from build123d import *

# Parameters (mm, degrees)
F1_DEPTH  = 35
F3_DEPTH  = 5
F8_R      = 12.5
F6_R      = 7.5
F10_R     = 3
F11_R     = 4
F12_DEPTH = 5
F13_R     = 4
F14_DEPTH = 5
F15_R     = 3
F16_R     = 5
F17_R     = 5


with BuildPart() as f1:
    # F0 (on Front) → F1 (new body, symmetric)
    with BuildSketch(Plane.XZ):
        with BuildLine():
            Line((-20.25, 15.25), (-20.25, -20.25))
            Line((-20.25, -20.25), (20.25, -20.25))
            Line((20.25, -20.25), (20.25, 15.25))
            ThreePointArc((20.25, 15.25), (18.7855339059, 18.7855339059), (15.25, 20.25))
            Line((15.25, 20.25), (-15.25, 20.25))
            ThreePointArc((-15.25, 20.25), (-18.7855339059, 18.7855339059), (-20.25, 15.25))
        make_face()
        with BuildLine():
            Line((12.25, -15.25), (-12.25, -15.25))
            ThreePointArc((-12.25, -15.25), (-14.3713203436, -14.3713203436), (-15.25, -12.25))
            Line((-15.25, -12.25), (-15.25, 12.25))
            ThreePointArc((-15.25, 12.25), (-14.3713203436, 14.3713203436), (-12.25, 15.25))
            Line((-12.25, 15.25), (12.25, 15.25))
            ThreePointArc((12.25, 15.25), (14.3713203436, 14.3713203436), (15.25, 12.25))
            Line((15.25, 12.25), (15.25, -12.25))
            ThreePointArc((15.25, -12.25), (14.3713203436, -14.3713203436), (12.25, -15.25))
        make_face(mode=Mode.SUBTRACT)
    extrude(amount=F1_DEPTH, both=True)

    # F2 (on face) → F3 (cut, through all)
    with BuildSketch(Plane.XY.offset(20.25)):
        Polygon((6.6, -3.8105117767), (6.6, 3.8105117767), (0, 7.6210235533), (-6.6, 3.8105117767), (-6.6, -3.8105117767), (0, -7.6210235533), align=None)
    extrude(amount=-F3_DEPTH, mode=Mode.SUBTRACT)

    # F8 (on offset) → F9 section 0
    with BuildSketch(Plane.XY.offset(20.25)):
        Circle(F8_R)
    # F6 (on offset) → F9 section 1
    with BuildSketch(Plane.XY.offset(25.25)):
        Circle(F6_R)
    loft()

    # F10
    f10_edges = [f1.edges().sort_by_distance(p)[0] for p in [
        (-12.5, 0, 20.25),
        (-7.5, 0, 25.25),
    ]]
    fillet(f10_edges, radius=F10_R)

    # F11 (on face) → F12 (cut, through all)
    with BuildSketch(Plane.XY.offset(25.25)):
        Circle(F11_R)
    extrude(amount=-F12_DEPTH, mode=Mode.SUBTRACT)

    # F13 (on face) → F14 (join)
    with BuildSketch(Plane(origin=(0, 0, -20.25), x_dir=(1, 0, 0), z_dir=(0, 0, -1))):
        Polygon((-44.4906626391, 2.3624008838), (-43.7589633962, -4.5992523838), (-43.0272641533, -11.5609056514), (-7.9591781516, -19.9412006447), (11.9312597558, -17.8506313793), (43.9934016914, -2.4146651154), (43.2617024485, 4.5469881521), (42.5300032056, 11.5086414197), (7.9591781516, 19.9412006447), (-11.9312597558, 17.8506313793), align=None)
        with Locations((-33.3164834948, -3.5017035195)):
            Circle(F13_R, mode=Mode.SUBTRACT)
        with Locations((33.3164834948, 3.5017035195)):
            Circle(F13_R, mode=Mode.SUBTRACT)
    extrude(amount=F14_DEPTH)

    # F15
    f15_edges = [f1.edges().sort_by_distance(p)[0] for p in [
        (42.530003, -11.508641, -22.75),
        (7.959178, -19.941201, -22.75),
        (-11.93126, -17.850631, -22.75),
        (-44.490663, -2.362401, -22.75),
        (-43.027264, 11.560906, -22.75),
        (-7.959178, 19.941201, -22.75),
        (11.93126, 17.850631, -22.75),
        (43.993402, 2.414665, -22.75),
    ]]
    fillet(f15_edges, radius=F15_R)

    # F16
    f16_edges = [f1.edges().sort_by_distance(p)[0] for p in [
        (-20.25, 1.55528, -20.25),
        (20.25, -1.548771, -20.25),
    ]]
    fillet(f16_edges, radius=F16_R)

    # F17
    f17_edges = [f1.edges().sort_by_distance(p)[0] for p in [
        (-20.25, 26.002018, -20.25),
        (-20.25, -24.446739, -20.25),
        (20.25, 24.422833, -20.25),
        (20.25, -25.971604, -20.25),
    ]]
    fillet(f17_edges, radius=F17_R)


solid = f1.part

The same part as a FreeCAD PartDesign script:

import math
import FreeCAD as App
import Part
import Sketcher

V = App.Vector
Q = App.Units.Quantity


def edges_at(feature, points):
    """Names of the edges that pass closest to the given points."""
    edges = feature.Shape.Edges
    near = lambda p: min(range(len(edges)), key=lambda i: edges[i].distToShape(Part.Vertex(*p))[0])
    return sorted({f"Edge{near(p) + 1}" for p in points})


def add_polygon(sketch, points):
    """Adds a closed chain of lines whose ends are joined by coincident constraints."""
    first, n = sketch.GeometryCount, len(points)
    for a, b in zip(points, points[1:] + points[:1]):
        sketch.addGeometry(Part.LineSegment(App.Vector(*a, 0), App.Vector(*b, 0)), False)
    for i in range(n):
        sketch.addConstraint(Sketcher.Constraint("Coincident", first + i, 2, first + (i + 1) % n, 1))

doc = App.newDocument("Part")
body = doc.addObject("PartDesign::Body", "Body")

sketch1 = body.newObject("Sketcher::SketchObject", "Sketch")
sketch1.AttachmentSupport = (doc.getObject("XZ_Plane"), [""])
sketch1.MapMode = "FlatFace"
sketch1.addGeometry([
    Part.LineSegment(V(-20.25, 15.25, 0), V(-20.25, -20.25, 0)),
    Part.LineSegment(V(-20.25, -20.25, 0), V(20.25, -20.25, 0)),
    Part.LineSegment(V(20.25, -20.25, 0), V(20.25, 15.25, 0)),
    Part.ArcOfCircle(Part.Circle(V(15.25, 15.25, 0), V(0, 0, 1), 5), math.radians(0), math.radians(90)),
    Part.LineSegment(V(15.25, 20.25, 0), V(-15.25, 20.25, 0)),
    Part.ArcOfCircle(Part.Circle(V(-15.25, 15.25, 0), V(0, 0, 1), 5), math.radians(90), math.radians(180)),
    Part.ArcOfCircle(Part.Circle(V(12.25, -12.25, 0), V(0, 0, 1), 3), math.radians(-90), math.radians(0)),
    Part.LineSegment(V(12.25, -15.25, 0), V(-12.25, -15.25, 0)),
    Part.ArcOfCircle(Part.Circle(V(-12.25, -12.25, 0), V(0, 0, 1), 3), math.radians(180), math.radians(270)),
    Part.LineSegment(V(-15.25, -12.25, 0), V(-15.25, 12.25, 0)),
    Part.ArcOfCircle(Part.Circle(V(-12.25, 12.25, 0), V(0, 0, 1), 3), math.radians(90), math.radians(180)),
    Part.LineSegment(V(-12.25, 15.25, 0), V(12.25, 15.25, 0)),
    Part.ArcOfCircle(Part.Circle(V(12.25, 12.25, 0), V(0, 0, 1), 3), math.radians(0), math.radians(90)),
    Part.LineSegment(V(15.25, 12.25, 0), V(15.25, -12.25, 0)),
], False)
sketch1.addConstraint([
    Sketcher.Constraint("Coincident", 0, 2, 1, 1),
    Sketcher.Constraint("Coincident", 1, 2, 2, 1),
    Sketcher.Constraint("Tangent", 2, 2, 3, 1),
    Sketcher.Constraint("Tangent", 3, 2, 4, 1),
    Sketcher.Constraint("Tangent", 4, 2, 5, 1),
    Sketcher.Constraint("Tangent", 5, 2, 0, 1),
    Sketcher.Constraint("Tangent", 6, 1, 7, 1),
    Sketcher.Constraint("Tangent", 7, 2, 8, 2),
    Sketcher.Constraint("Tangent", 8, 1, 9, 1),
    Sketcher.Constraint("Tangent", 9, 2, 10, 2),
    Sketcher.Constraint("Tangent", 10, 1, 11, 1),
    Sketcher.Constraint("Tangent", 11, 2, 12, 2),
    Sketcher.Constraint("Tangent", 12, 1, 13, 1),
    Sketcher.Constraint("Tangent", 13, 2, 6, 2),
    Sketcher.Constraint("Vertical", 0),
    Sketcher.Constraint("Horizontal", 1),
    Sketcher.Constraint("Vertical", 2),
    Sketcher.Constraint("Horizontal", 4),
    Sketcher.Constraint("Horizontal", 7),
    Sketcher.Constraint("Vertical", 9),
    Sketcher.Constraint("Horizontal", 11),
    Sketcher.Constraint("Vertical", 13),
    Sketcher.Constraint("Equal", 3, 5),
    Sketcher.Constraint("Equal", 6, 8),
    Sketcher.Constraint("Equal", 8, 10),
    Sketcher.Constraint("Equal", 10, 12),
    Sketcher.Constraint("Symmetric", 6, 3, 10, 3, -1, 1),
    Sketcher.Constraint("Horizontal", 5, 2, 10, 1),
    Sketcher.Constraint("Vertical", 4, 2, 8, 1),
    Sketcher.Constraint("Vertical", 3, 2, 12, 1),
    Sketcher.Constraint("Equal", 11, 9),
    Sketcher.Constraint("Radius", 3, Q("5 mm")),
    Sketcher.Constraint("Radius", 6, Q("3 mm")),
    Sketcher.Constraint("DistanceX", 1, 1, 1, 2, Q("40.5 mm")),
    Sketcher.Constraint("DistanceY", 0, 2, 0, 1, Q("35.5 mm")),
])
pad1 = body.newObject("PartDesign::Pad", "Pad")
pad1.Profile = sketch1
pad1.Length = 70
pad1.Midplane = True

sketch2 = body.newObject("Sketcher::SketchObject", "Sketch001")
sketch2.AttachmentSupport = (doc.getObject("XY_Plane"), [""])
sketch2.MapMode = "FlatFace"
sketch2.AttachmentOffset = App.Placement(V(0, 0, 20.25), App.Rotation())
add_polygon(sketch2, [(6.6, -3.810512), (6.6, 3.810512), (0, 7.621024), (-6.6, 3.810512), (-6.6, -3.810512), (0, -7.621024)])
sketch2.addConstraint([
    Sketcher.Constraint("Vertical", 0),
    Sketcher.Constraint("Vertical", 3),
    Sketcher.Constraint("Symmetric", 0, 2, 3, 2, -1, 1),
    Sketcher.Constraint("Symmetric", 1, 2, 4, 2, -1, 1),
    Sketcher.Constraint("PointOnObject", 1, 2, -2),
    Sketcher.Constraint("Parallel", 2, 5),
    Sketcher.Constraint("Horizontal", 0, 2, 2, 2),
    Sketcher.Constraint("Angle", 1, Q("150 deg")),
    Sketcher.Constraint("DistanceX", -1, 1, 0, 2, Q("6.6 mm")),
    Sketcher.Constraint("DistanceY", 0, 1, 0, 2, Q("7.621024 mm")),
])
pocket1 = body.newObject("PartDesign::Pocket", "Pocket")
pocket1.Profile = sketch2
pocket1.Length = 5

sketch3 = body.newObject("Sketcher::SketchObject", "Sketch002")
sketch3.AttachmentSupport = (doc.getObject("XY_Plane"), [""])
sketch3.MapMode = "FlatFace"
sketch3.AttachmentOffset = App.Placement(V(0, 0, 20.25), App.Rotation())
sketch3.addGeometry(Part.Circle(V(0, 0, 0), V(0, 0, 1), 12.5), False)
sketch3.addConstraint([
    Sketcher.Constraint("Coincident", 0, 3, -1, 1),
    Sketcher.Constraint("Diameter", 0, Q("25 mm")),
])

sketch4 = body.newObject("Sketcher::SketchObject", "Sketch003")
sketch4.AttachmentSupport = (doc.getObject("XY_Plane"), [""])
sketch4.MapMode = "FlatFace"
sketch4.AttachmentOffset = App.Placement(V(0, 0, 25.25), App.Rotation())
sketch4.addGeometry(Part.Circle(V(0, 0, 0), V(0, 0, 1), 7.5), False)
sketch4.addConstraint([
    Sketcher.Constraint("Coincident", 0, 3, -1, 1),
    Sketcher.Constraint("Diameter", 0, Q("15 mm")),
])

additiveloft = body.newObject("PartDesign::AdditiveLoft", "AdditiveLoft")
additiveloft.Profile = sketch3
additiveloft.Sections = [sketch4]
doc.recompute()

fillet = body.newObject("PartDesign::Fillet", "Fillet")
fillet.Base = (additiveloft, edges_at(additiveloft, [(-12.5, 0, 20.25), (-7.5, 0, 25.25)]))
fillet.Radius = 3

sketch5 = body.newObject("Sketcher::SketchObject", "Sketch004")
sketch5.AttachmentSupport = (doc.getObject("XY_Plane"), [""])
sketch5.MapMode = "FlatFace"
sketch5.AttachmentOffset = App.Placement(V(0, 0, 25.25), App.Rotation())
sketch5.addGeometry(Part.Circle(V(0, 0, 0), V(0, 0, 1), 4), False)
sketch5.addConstraint([
    Sketcher.Constraint("Coincident", 0, 3, -1, 1),
    Sketcher.Constraint("Diameter", 0, Q("8 mm")),
])
pocket2 = body.newObject("PartDesign::Pocket", "Pocket001")
pocket2.Profile = sketch5
pocket2.Length = 5

sketch6 = body.newObject("Sketcher::SketchObject", "Sketch005")
sketch6.AttachmentSupport = (doc.getObject("XY_Plane"), [""])
sketch6.MapMode = "FlatFace"
sketch6.AttachmentOffset = App.Placement(V(0, 0, -20.25), App.Rotation())
add_polygon(sketch6, [(-44.490663, -2.362401), (-43.027264, 11.560906), (-7.959178, 19.941201), (11.93126, 17.850631), (43.993402, 2.414665), (43.261702, -4.546988), (42.530003, -11.508641), (7.959178, -19.941201), (-11.93126, -17.850631)])
sketch6.addGeometry(Part.Circle(V(-33.316483, 3.501704, 0), V(0, 0, 1), 4), False)
sketch6.addGeometry(Part.Circle(V(33.316483, -3.501704, 0), V(0, 0, 1), 4), False)
sketch6.addConstraint([
    Sketcher.Constraint("Equal", 9, 10),
    Sketcher.Constraint("Symmetric", 9, 3, 10, 3, -1, 1),
    Sketcher.Constraint("Symmetric", 1, 2, 6, 2, -1, 1),
    Sketcher.Constraint("Symmetric", 2, 2, 7, 2, -1, 1),
    Sketcher.Constraint("Perpendicular", 0, 2),
    Sketcher.Constraint("Perpendicular", 2, 4),
    Sketcher.Constraint("Parallel", 4, 5),
    Sketcher.Constraint("Equal", 4, 5),
    Sketcher.Constraint("Equal", 3, 6),
    Sketcher.Constraint("Equal", 1, 8),
    Sketcher.Constraint("Diameter", 9, Q("8 mm")),
    Sketcher.Constraint("Angle", 0, Q("84 deg")),
    Sketcher.Constraint("Distance", 0, Q("14 mm")),
    Sketcher.Constraint("Distance", 2, Q("20 mm")),
    Sketcher.Constraint("Distance", 4, Q("7 mm")),
    Sketcher.Constraint("DistanceY", -1, 1, 1, 2, Q("19.941201 mm")),
    Sketcher.Constraint("DistanceX", -1, 1, 3, 2, Q("43.993402 mm")),
    Sketcher.Constraint("DistanceY", 8, 2, -1, 1, Q("2.362401 mm")),
    Sketcher.Constraint("DistanceX", 1, 2, -1, 1, Q("7.959178 mm")),
    Sketcher.Constraint("DistanceX", 0, 2, 9, 3, Q("9.710781 mm")),
    Sketcher.Constraint("DistanceY", 10, 3, 0, 2, Q("15.062609 mm")),
])
pad2 = body.newObject("PartDesign::Pad", "Pad001")
pad2.Profile = sketch6
pad2.Length = 5
pad2.Reversed = True
doc.recompute()

fillet2 = body.newObject("PartDesign::Fillet", "Fillet001")
fillet2.Base = (pad2, edges_at(pad2, [
    (42.53, -11.509, -22.75),
    (7.959, -19.941, -22.75),
    (-11.931, -17.851, -22.75),
    (-44.491, -2.362, -22.75),
    (-43.027, 11.561, -22.75),
    (-7.959, 19.941, -22.75),
    (11.931, 17.851, -22.75),
    (43.993, 2.415, -22.75),
]))
fillet2.Radius = 3
doc.recompute()

fillet3 = body.newObject("PartDesign::Fillet", "Fillet002")
fillet3.Base = (fillet2, edges_at(fillet2, [(-20.25, 1.555, -20.25), (20.25, -1.549, -20.25)]))
fillet3.Radius = 5
doc.recompute()

fillet4 = body.newObject("PartDesign::Fillet", "Fillet003")
fillet4.Base = (fillet3, edges_at(fillet3, [
    (-20.25, 26.002, -20.25),
    (-20.25, -24.447, -20.25),
    (20.25, 24.423, -20.25),
    (20.25, -25.972, -20.25),
]))
fillet4.Radius = 5

doc.recompute()
